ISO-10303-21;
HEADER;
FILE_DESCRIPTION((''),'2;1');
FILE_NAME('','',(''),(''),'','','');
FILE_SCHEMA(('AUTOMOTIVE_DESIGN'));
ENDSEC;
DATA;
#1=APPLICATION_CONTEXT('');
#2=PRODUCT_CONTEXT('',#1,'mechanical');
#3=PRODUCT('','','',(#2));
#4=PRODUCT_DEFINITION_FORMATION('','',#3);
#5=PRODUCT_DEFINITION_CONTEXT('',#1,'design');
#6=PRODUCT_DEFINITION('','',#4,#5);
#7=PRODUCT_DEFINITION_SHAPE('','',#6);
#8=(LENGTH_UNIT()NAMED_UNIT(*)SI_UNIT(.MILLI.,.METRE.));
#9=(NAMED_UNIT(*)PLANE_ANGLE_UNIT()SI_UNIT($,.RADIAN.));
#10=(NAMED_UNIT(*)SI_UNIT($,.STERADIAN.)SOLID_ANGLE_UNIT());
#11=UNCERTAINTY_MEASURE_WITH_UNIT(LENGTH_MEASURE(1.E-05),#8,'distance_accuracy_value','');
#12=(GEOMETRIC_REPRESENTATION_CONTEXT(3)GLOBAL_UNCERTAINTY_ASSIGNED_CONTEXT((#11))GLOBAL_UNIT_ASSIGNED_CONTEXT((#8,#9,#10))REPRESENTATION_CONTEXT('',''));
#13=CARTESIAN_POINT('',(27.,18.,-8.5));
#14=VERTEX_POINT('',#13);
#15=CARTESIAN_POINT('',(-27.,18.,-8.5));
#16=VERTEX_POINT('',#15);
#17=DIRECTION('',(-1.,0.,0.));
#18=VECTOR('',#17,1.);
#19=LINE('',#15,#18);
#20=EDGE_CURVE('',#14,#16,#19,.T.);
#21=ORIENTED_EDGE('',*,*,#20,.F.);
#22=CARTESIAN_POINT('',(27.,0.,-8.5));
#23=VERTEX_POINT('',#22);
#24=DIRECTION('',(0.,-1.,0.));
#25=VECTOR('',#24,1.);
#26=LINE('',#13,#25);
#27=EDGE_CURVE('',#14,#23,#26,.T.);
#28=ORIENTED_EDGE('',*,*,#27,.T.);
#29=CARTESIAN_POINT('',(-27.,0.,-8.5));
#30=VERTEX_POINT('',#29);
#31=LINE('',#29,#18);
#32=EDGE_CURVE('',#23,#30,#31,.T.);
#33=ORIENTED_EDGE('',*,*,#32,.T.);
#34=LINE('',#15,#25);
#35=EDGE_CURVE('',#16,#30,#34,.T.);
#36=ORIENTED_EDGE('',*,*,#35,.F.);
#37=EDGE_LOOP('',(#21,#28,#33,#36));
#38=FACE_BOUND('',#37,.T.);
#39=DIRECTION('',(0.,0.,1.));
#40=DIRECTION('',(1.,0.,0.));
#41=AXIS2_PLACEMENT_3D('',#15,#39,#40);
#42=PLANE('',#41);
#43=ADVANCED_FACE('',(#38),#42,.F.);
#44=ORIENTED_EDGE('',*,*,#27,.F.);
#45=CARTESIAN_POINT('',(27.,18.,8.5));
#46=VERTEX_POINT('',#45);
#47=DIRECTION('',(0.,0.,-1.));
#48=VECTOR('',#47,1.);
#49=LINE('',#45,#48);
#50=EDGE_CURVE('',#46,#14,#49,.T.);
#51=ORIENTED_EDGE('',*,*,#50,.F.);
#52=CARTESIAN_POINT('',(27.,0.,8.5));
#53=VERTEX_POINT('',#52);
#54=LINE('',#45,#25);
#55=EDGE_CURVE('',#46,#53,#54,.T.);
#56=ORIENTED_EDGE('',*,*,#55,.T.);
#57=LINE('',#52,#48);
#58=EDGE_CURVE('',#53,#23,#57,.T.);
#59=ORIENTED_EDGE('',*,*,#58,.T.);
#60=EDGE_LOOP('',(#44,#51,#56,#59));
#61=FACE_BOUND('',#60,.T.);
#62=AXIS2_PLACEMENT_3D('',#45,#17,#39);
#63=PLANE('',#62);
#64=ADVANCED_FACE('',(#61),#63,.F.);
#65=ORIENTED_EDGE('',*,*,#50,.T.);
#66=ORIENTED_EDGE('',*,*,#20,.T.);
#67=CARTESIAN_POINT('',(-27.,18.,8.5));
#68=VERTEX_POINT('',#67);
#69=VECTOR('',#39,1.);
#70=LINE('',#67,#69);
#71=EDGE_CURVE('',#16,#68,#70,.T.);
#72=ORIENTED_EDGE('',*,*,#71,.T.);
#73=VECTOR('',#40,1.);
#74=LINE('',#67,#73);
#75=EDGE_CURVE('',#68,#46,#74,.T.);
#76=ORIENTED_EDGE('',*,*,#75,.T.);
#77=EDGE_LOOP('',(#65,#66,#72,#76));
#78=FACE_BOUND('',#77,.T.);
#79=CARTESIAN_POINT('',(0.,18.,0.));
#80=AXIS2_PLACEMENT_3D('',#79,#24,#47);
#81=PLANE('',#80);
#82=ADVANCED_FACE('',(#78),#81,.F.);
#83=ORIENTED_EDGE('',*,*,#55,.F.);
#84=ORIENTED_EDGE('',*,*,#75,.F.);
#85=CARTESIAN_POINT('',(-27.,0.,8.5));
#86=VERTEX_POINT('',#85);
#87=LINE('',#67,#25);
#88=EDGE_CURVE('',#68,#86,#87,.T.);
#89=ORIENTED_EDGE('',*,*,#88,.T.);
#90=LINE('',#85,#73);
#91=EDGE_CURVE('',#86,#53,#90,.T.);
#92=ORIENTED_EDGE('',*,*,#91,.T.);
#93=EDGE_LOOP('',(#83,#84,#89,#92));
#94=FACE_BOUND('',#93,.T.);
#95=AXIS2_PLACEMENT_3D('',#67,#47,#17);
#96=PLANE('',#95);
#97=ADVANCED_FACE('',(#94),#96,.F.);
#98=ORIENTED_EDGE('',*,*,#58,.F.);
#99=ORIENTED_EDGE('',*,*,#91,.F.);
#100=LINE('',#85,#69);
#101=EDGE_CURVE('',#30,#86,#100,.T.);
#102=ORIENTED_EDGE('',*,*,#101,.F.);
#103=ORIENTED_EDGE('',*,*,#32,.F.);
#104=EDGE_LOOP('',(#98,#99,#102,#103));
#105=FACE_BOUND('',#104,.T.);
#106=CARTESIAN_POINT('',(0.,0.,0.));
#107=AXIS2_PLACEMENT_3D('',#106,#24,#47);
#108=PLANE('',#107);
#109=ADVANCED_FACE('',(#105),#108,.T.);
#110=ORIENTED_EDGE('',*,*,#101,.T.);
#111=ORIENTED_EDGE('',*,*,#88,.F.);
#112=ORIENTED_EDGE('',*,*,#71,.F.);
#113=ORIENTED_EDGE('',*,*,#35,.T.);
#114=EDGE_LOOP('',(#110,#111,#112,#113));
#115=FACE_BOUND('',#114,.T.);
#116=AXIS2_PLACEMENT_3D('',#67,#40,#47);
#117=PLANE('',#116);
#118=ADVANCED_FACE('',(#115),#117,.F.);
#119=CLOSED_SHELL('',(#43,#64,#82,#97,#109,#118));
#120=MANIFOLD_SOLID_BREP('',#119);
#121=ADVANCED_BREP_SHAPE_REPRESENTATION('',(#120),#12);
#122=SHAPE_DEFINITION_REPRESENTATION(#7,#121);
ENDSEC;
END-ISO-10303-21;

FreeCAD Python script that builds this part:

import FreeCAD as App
import Part
import Sketcher
from FreeCAD import Vector


def add_polygon(sketch, points):
    """Adds a closed chain of lines whose ends are joined by coincident constraints."""
    first, n = sketch.GeometryCount, len(points)
    for a, b in zip(points, points[1:] + points[:1]):
        sketch.addGeometry(Part.LineSegment(App.Vector(*a, 0), App.Vector(*b, 0)), False)
    for i in range(n):
        sketch.addConstraint(Sketcher.Constraint("Coincident", first + i, 2, first + (i + 1) % n, 1))

doc = App.newDocument("Part")
params = doc.addObject("Spreadsheet::Sheet", "Params")
for row, (alias, value) in enumerate([
    ("sketch1_width", "54 mm"),
    ("sketch1_height", "17 mm"),
    ("pad1_length", "18 mm"),
], start=1):
    params.set(f"A{row}", alias)
    params.set(f"B{row}", "=" + value)
    params.setAlias(f"B{row}", alias)

body = doc.addObject("PartDesign::Body", "Body")

# Sketch on XZ plane
sketch1 = doc.addObject("Sketcher::SketchObject", "Sketch")
body.addObject(sketch1)
sketch1.AttachmentSupport = (doc.XZ_Plane, [""])
sketch1.MapMode = "FlatFace"
add_polygon(sketch1, [(-27, -8), (-27, 8), (27, 8), (27, -8)])  # lines 0-3
sketch1.addConstraint(Sketcher.Constraint("Vertical", 0))
sketch1.addConstraint(Sketcher.Constraint("Horizontal", 1))
sketch1.addConstraint(Sketcher.Constraint("Vertical", 2))
sketch1.addConstraint(Sketcher.Constraint("Horizontal", 3))
sketch1.addConstraint(Sketcher.Constraint("Symmetric", 0, 2, 2, 2, -1, 1))
sketch1.addConstraint(Sketcher.Constraint("DistanceX", 1, 1, 1, 2, 54.0))
sketch1.addConstraint(Sketcher.Constraint("DistanceY", 0, 1, 0, 2, 17.0))
sketch1.setExpression("Constraints[9]", "Params.sketch1_width")
sketch1.setExpression("Constraints[10]", "Params.sketch1_height")
pad1 = doc.addObject("PartDesign::Pad", "Pad")
body.addObject(pad1)
pad1.Profile = sketch1
pad1.setExpression("Length", "Params.pad1_length")
pad1.Reversed = True

doc.recompute()
